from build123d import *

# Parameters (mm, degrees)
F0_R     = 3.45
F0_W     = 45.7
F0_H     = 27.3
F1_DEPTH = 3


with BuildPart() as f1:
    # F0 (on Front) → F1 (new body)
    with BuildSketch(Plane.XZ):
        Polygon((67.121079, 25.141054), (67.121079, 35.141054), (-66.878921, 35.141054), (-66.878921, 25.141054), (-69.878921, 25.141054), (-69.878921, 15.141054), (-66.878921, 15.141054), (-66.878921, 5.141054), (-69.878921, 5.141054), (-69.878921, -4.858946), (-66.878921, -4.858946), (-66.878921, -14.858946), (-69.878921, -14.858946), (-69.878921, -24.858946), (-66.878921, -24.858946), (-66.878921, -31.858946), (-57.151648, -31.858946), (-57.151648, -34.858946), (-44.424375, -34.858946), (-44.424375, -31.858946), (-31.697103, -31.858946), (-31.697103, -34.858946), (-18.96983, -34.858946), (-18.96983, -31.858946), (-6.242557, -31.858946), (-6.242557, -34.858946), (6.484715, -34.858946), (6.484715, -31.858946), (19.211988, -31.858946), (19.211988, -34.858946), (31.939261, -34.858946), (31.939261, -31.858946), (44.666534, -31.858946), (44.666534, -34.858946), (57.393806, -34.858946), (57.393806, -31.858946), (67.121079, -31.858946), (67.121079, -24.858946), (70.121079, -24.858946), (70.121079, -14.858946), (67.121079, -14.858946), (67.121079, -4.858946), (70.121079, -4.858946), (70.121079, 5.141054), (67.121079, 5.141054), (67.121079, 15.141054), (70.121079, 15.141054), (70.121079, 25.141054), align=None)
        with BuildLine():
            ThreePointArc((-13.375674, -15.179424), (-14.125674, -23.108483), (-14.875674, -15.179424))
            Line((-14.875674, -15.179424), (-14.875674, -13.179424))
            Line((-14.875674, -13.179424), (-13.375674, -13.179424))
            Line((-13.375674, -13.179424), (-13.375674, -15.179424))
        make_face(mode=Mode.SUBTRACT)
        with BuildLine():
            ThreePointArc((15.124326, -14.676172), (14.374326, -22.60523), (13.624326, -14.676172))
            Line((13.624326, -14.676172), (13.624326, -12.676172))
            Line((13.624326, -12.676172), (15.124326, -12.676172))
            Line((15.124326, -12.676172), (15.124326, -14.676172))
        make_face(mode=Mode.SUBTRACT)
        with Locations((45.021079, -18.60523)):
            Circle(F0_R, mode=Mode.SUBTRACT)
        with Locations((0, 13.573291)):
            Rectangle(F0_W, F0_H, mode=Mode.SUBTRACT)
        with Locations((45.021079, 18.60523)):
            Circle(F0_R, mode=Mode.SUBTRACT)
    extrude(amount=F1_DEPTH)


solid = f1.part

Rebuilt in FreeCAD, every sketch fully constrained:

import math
import FreeCAD as App
import Part
import Sketcher
Q = App.Units.Quantity

doc = App.newDocument("Part")
body = doc.addObject("PartDesign::Body", "Body")

sketch1 = body.newObject("Sketcher::SketchObject", "Sketch")
sketch1.AttachmentSupport = (doc.getObject("XZ_Plane"), [""])
sketch1.MapMode = "FlatFace"
sketch1.addGeometry([
    Part.LineSegment(App.Vector(67.1, 25.1, 0), App.Vector(67.1, 35.1, 0)),
    Part.LineSegment(App.Vector(67.1, 35.1, 0), App.Vector(-66.9, 35.1, 0)),
    Part.LineSegment(App.Vector(-66.9, 35.1, 0), App.Vector(-66.9, 25.1, 0)),
    Part.LineSegment(App.Vector(-66.9, 25.1, 0), App.Vector(-69.9, 25.1, 0)),
    Part.LineSegment(App.Vector(-69.9, 25.1, 0), App.Vector(-69.9, 15.1, 0)),
    Part.LineSegment(App.Vector(-69.9, 15.1, 0), App.Vector(-66.9, 15.1, 0)),
    Part.LineSegment(App.Vector(-66.9, 15.1, 0), App.Vector(-66.9, 5.1, 0)),
    Part.LineSegment(App.Vector(-66.9, 5.1, 0), App.Vector(-69.9, 5.1, 0)),
    Part.LineSegment(App.Vector(-69.9, 5.1, 0), App.Vector(-69.9, -4.9, 0)),
    Part.LineSegment(App.Vector(-69.9, -4.9, 0), App.Vector(-66.9, -4.9, 0)),
    Part.LineSegment(App.Vector(-66.9, -4.9, 0), App.Vector(-66.9, -14.9, 0)),
    Part.LineSegment(App.Vector(-66.9, -14.9, 0), App.Vector(-69.9, -14.9, 0)),
    Part.LineSegment(App.Vector(-69.9, -14.9, 0), App.Vector(-69.9, -24.9, 0)),
    Part.LineSegment(App.Vector(-69.9, -24.9, 0), App.Vector(-66.9, -24.9, 0)),
    Part.LineSegment(App.Vector(-66.9, -24.9, 0), App.Vector(-66.9, -31.9, 0)),
    Part.LineSegment(App.Vector(-66.9, -31.9, 0), App.Vector(-57.2, -31.9, 0)),
    Part.LineSegment(App.Vector(-57.2, -31.9, 0), App.Vector(-57.2, -34.9, 0)),
    Part.LineSegment(App.Vector(-57.2, -34.9, 0), App.Vector(-44.4, -34.9, 0)),
    Part.LineSegment(App.Vector(-44.4, -34.9, 0), App.Vector(-44.4, -31.9, 0)),
    Part.LineSegment(App.Vector(-44.4, -31.9, 0), App.Vector(-31.7, -31.9, 0)),
    Part.LineSegment(App.Vector(-31.7, -31.9, 0), App.Vector(-31.7, -34.9, 0)),
    Part.LineSegment(App.Vector(-31.7, -34.9, 0), App.Vector(-19, -34.9, 0)),
    Part.LineSegment(App.Vector(-19, -34.9, 0), App.Vector(-19, -31.9, 0)),
    Part.LineSegment(App.Vector(-19, -31.9, 0), App.Vector(-6.2, -31.9, 0)),
    Part.LineSegment(App.Vector(-6.2, -31.9, 0), App.Vector(-6.2, -34.9, 0)),
    Part.LineSegment(App.Vector(-6.2, -34.9, 0), App.Vector(6.5, -34.9, 0)),
    Part.LineSegment(App.Vector(6.5, -34.9, 0), App.Vector(6.5, -31.9, 0)),
    Part.LineSegment(App.Vector(6.5, -31.9, 0), App.Vector(19.2, -31.9, 0)),
    Part.LineSegment(App.Vector(19.2, -31.9, 0), App.Vector(19.2, -34.9, 0)),
    Part.LineSegment(App.Vector(19.2, -34.9, 0), App.Vector(31.9, -34.9, 0)),
    Part.LineSegment(App.Vector(31.9, -34.9, 0), App.Vector(31.9, -31.9, 0)),
    Part.LineSegment(App.Vector(31.9, -31.9, 0), App.Vector(44.7, -31.9, 0)),
    Part.LineSegment(App.Vector(44.7, -31.9, 0), App.Vector(44.7, -34.9, 0)),
    Part.LineSegment(App.Vector(44.7, -34.9, 0), App.Vector(57.4, -34.9, 0)),
    Part.LineSegment(App.Vector(57.4, -34.9, 0), App.Vector(57.4, -31.9, 0)),
    Part.LineSegment(App.Vector(57.4, -31.9, 0), App.Vector(67.1, -31.9, 0)),
    Part.LineSegment(App.Vector(67.1, -31.9, 0), App.Vector(67.1, -24.9, 0)),
    Part.LineSegment(App.Vector(67.1, -24.9, 0), App.Vector(70.1, -24.9, 0)),
    Part.LineSegment(App.Vector(70.1, -24.9, 0), App.Vector(70.1, -14.9, 0)),
    Part.LineSegment(App.Vector(70.1, -14.9, 0), App.Vector(67.1, -14.9, 0)),
    Part.LineSegment(App.Vector(67.1, -14.9, 0), App.Vector(67.1, -4.9, 0)),
    Part.LineSegment(App.Vector(67.1, -4.9, 0), App.Vector(70.1, -4.9, 0)),
    Part.LineSegment(App.Vector(70.1, -4.9, 0), App.Vector(70.1, 5.1, 0)),
    Part.LineSegment(App.Vector(70.1, 5.1, 0), App.Vector(67.1, 5.1, 0)),
    Part.LineSegment(App.Vector(67.1, 5.1, 0), App.Vector(67.1, 15.1, 0)),
    Part.LineSegment(App.Vector(67.1, 15.1, 0), App.Vector(70.1, 15.1, 0)),
    Part.LineSegment(App.Vector(70.1, 15.1, 0), App.Vector(70.1, 25.1, 0)),
    Part.LineSegment(App.Vector(70.1, 25.1, 0), App.Vector(67.1, 25.1, 0)),
    Part.LineSegment(App.Vector(-13.4, -13.2, 0), App.Vector(-13.4, -15.2, 0)),
    Part.ArcOfCircle(Part.Circle(App.Vector(-14.1, -19.1, 0), App.Vector(0, 0, 1), 4), math.radians(101), math.radians(439)),
    Part.LineSegment(App.Vector(-14.9, -15.2, 0), App.Vector(-14.9, -13.2, 0)),
    Part.LineSegment(App.Vector(-14.9, -13.2, 0), App.Vector(-13.4, -13.2, 0)),
    Part.LineSegment(App.Vector(15.1, -12.7, 0), App.Vector(15.1, -14.7, 0)),
    Part.ArcOfCircle(Part.Circle(App.Vector(14.4, -18.6, 0), App.Vector(0, 0, 1), 4), math.radians(101), math.radians(439)),
    Part.LineSegment(App.Vector(13.6, -14.7, 0), App.Vector(13.6, -12.7, 0)),
    Part.LineSegment(App.Vector(13.6, -12.7, 0), App.Vector(15.1, -12.7, 0)),
    Part.Circle(App.Vector(45, -18.6, 0), App.Vector(0, 0, 1), 3.5),
    Part.LineSegment(App.Vector(22.9, -0.1, 0), App.Vector(-22.9, -0.1, 0)),
    Part.LineSegment(App.Vector(-22.9, -0.1, 0), App.Vector(-22.9, 27.2, 0)),
    Part.LineSegment(App.Vector(-22.9, 27.2, 0), App.Vector(22.9, 27.2, 0)),
    Part.LineSegment(App.Vector(22.9, 27.2, 0), App.Vector(22.9, -0.1, 0)),
    Part.Circle(App.Vector(45, 18.6, 0), App.Vector(0, 0, 1), 3.5),
], False)
sketch1.addConstraint([
    Sketcher.Constraint("Coincident", 0, 2, 1, 1),
    Sketcher.Constraint("Coincident", 1, 2, 2, 1),
    Sketcher.Constraint("Coincident", 2, 2, 3, 1),
    Sketcher.Constraint("Coincident", 3, 2, 4, 1),
    Sketcher.Constraint("Coincident", 4, 2, 5, 1),
    Sketcher.Constraint("Coincident", 5, 2, 6, 1),
    Sketcher.Constraint("Coincident", 6, 2, 7, 1),
    Sketcher.Constraint("Coincident", 7, 2, 8, 1),
    Sketcher.Constraint("Coincident", 8, 2, 9, 1),
    Sketcher.Constraint("Coincident", 9, 2, 10, 1),
    Sketcher.Constraint("Coincident", 10, 2, 11, 1),
    Sketcher.Constraint("Coincident", 11, 2, 12, 1),
    Sketcher.Constraint("Coincident", 12, 2, 13, 1),
    Sketcher.Constraint("Coincident", 13, 2, 14, 1),
    Sketcher.Constraint("Coincident", 14, 2, 15, 1),
    Sketcher.Constraint("Coincident", 15, 2, 16, 1),
    Sketcher.Constraint("Coincident", 16, 2, 17, 1),
    Sketcher.Constraint("Coincident", 17, 2, 18, 1),
    Sketcher.Constraint("Coincident", 18, 2, 19, 1),
    Sketcher.Constraint("Coincident", 19, 2, 20, 1),
    Sketcher.Constraint("Coincident", 20, 2, 21, 1),
    Sketcher.Constraint("Coincident", 21, 2, 22, 1),
    Sketcher.Constraint("Coincident", 22, 2, 23, 1),
    Sketcher.Constraint("Coincident", 23, 2, 24, 1),
    Sketcher.Constraint("Coincident", 24, 2, 25, 1),
    Sketcher.Constraint("Coincident", 25, 2, 26, 1),
    Sketcher.Constraint("Coincident", 26, 2, 27, 1),
    Sketcher.Constraint("Coincident", 27, 2, 28, 1),
    Sketcher.Constraint("Coincident", 28, 2, 29, 1),
    Sketcher.Constraint("Coincident", 29, 2, 30, 1),
    Sketcher.Constraint("Coincident", 30, 2, 31, 1),
    Sketcher.Constraint("Coincident", 31, 2, 32, 1),
    Sketcher.Constraint("Coincident", 32, 2, 33, 1),
    Sketcher.Constraint("Coincident", 33, 2, 34, 1),
    Sketcher.Constraint("Coincident", 34, 2, 35, 1),
    Sketcher.Constraint("Coincident", 35, 2, 36, 1),
    Sketcher.Constraint("Coincident", 36, 2, 37, 1),
    Sketcher.Constraint("Coincident", 37, 2, 38, 1),
    Sketcher.Constraint("Coincident", 38, 2, 39, 1),
    Sketcher.Constraint("Coincident", 39, 2, 40, 1),
    Sketcher.Constraint("Coincident", 40, 2, 41, 1),
    Sketcher.Constraint("Coincident", 41, 2, 42, 1),
    Sketcher.Constraint("Coincident", 42, 2, 43, 1),
    Sketcher.Constraint("Coincident", 43, 2, 44, 1),
    Sketcher.Constraint("Coincident", 44, 2, 45, 1),
    Sketcher.Constraint("Coincident", 45, 2, 46, 1),
    Sketcher.Constraint("Coincident", 46, 2, 47, 1),
    Sketcher.Constraint("Coincident", 47, 2, 0, 1),
    Sketcher.Constraint("Coincident", 48, 2, 49, 2),
    Sketcher.Constraint("Coincident", 49, 1, 50, 1),
    Sketcher.Constraint("Coincident", 50, 2, 51, 1),
    Sketcher.Constraint("Coincident", 51, 2, 48, 1),
    Sketcher.Constraint("Coincident", 52, 2, 53, 2),
    Sketcher.Constraint("Coincident", 53, 1, 54, 1),
    Sketcher.Constraint("Coincident", 54, 2, 55, 1),
    Sketcher.Constraint("Coincident", 55, 2, 52, 1),
    Sketcher.Constraint("Coincident", 57, 2, 58, 1),
    Sketcher.Constraint("Coincident", 58, 2, 59, 1),
    Sketcher.Constraint("Coincident", 59, 2, 60, 1),
    Sketcher.Constraint("Coincident", 60, 2, 57, 1),
    Sketcher.Constraint("Vertical", 0),
    Sketcher.Constraint("Horizontal", 1),
    Sketcher.Constraint("Vertical", 2),
    Sketcher.Constraint("Horizontal", 3),
    Sketcher.Constraint("Vertical", 4),
    Sketcher.Constraint("Horizontal", 5),
    Sketcher.Constraint("Vertical", 6),
    Sketcher.Constraint("Horizontal", 7),
    Sketcher.Constraint("Vertical", 8),
    Sketcher.Constraint("Horizontal", 9),
    Sketcher.Constraint("Vertical", 10),
    Sketcher.Constraint("Horizontal", 11),
    Sketcher.Constraint("Vertical", 12),
    Sketcher.Constraint("Horizontal", 13),
    Sketcher.Constraint("Vertical", 14),
    Sketcher.Constraint("Horizontal", 15),
    Sketcher.Constraint("Vertical", 16),
    Sketcher.Constraint("Horizontal", 17),
    Sketcher.Constraint("Vertical", 18),
    Sketcher.Constraint("Horizontal", 19),
    Sketcher.Constraint("Vertical", 20),
    Sketcher.Constraint("Horizontal", 21),
    Sketcher.Constraint("Vertical", 22),
    Sketcher.Constraint("Horizontal", 23),
    Sketcher.Constraint("Vertical", 24),
    Sketcher.Constraint("Horizontal", 25),
    Sketcher.Constraint("Vertical", 26),
    Sketcher.Constraint("Horizontal", 27),
    Sketcher.Constraint("Vertical", 28),
    Sketcher.Constraint("Horizontal", 29),
    Sketcher.Constraint("Vertical", 30),
    Sketcher.Constraint("Horizontal", 31),
    Sketcher.Constraint("Vertical", 32),
    Sketcher.Constraint("Horizontal", 33),
    Sketcher.Constraint("Vertical", 34),
    Sketcher.Constraint("Horizontal", 35),
    Sketcher.Constraint("Vertical", 36),
    Sketcher.Constraint("Horizontal", 37),
    Sketcher.Constraint("Vertical", 38),
    Sketcher.Constraint("Horizontal", 39),
    Sketcher.Constraint("Vertical", 40),
    Sketcher.Constraint("Horizontal", 41),
    Sketcher.Constraint("Vertical", 42),
    Sketcher.Constraint("Horizontal", 43),
    Sketcher.Constraint("Vertical", 44),
    Sketcher.Constraint("Horizontal", 45),
    Sketcher.Constraint("Vertical", 46),
    Sketcher.Constraint("Horizontal", 47),
    Sketcher.Constraint("Vertical", 48),
    Sketcher.Constraint("Vertical", 50),
    Sketcher.Constraint("Horizontal", 51),
    Sketcher.Constraint("Vertical", 52),
    Sketcher.Constraint("Vertical", 54),
    Sketcher.Constraint("Horizontal", 55),
    Sketcher.Constraint("Horizontal", 57),
    Sketcher.Constraint("Vertical", 58),
    Sketcher.Constraint("Horizontal", 59),
    Sketcher.Constraint("Vertical", 60),
    Sketcher.Constraint("Equal", 49, 53),
    Sketcher.Constraint("Equal", 56, 61),
    Sketcher.Constraint("Symmetric", 56, 3, 61, 3, -1),
    Sketcher.Constraint("Horizontal", 53, 3, 56, 3),
    Sketcher.Constraint("Horizontal", 15, 2, 18, 2),
    Sketcher.Constraint("Horizontal", 17, 2, 20, 2),
    Sketcher.Constraint("Horizontal", 19, 2, 22, 2),
    Sketcher.Constraint("Horizontal", 21, 2, 24, 2),
    Sketcher.Constraint("Horizontal", 23, 2, 26, 2),
    Sketcher.Constraint("Horizontal", 25, 2, 28, 2),
    Sketcher.Constraint("Horizontal", 27, 2, 30, 2),
    Sketcher.Constraint("Horizontal", 29, 2, 32, 2),
    Sketcher.Constraint("Horizontal", 31, 2, 34, 2),
    Sketcher.Constraint("Horizontal", 13, 2, 36, 2),
    Sketcher.Constraint("Horizontal", 11, 2, 38, 2),
    Sketcher.Constraint("Horizontal", 9, 2, 40, 2),
    Sketcher.Constraint("Horizontal", 7, 2, 42, 2),
    Sketcher.Constraint("Horizontal", 5, 2, 44, 2),
    Sketcher.Constraint("Horizontal", 3, 2, 46, 2),
    Sketcher.Constraint("Horizontal", 48, 2, 49, 1),
    Sketcher.Constraint("Horizontal", 52, 2, 53, 1),
    Sketcher.Constraint("Vertical", 2, 2, 5, 2),
    Sketcher.Constraint("Vertical", 4, 2, 7, 2),
    Sketcher.Constraint("Vertical", 6, 2, 9, 2),
    Sketcher.Constraint("Vertical", 8, 2, 11, 2),
    Sketcher.Constraint("Vertical", 10, 2, 13, 2),
    Sketcher.Constraint("Vertical", 0, 2, 35, 2),
    Sketcher.Constraint("Vertical", 36, 2, 39, 2),
    Sketcher.Constraint("Vertical", 38, 2, 41, 2),
    Sketcher.Constraint("Vertical", 40, 2, 43, 2),
    Sketcher.Constraint("Vertical", 42, 2, 45, 2),
    Sketcher.Constraint("Equal", 17, 19),
    Sketcher.Constraint("Equal", 19, 21),
    Sketcher.Constraint("Equal", 21, 23),
    Sketcher.Constraint("Equal", 23, 25),
    Sketcher.Constraint("Equal", 25, 27),
    Sketcher.Constraint("Equal", 27, 29),
    Sketcher.Constraint("Equal", 29, 31),
    Sketcher.Constraint("Equal", 31, 33),
    Sketcher.Constraint("Equal", 15, 35),
    Sketcher.Constraint("Equal", 13, 37),
    Sketcher.Constraint("Equal", 51, 55),
    Sketcher.Constraint("Equal", 2, 4),
    Sketcher.Constraint("Equal", 4, 6),
    Sketcher.Constraint("Equal", 6, 8),
    Sketcher.Constraint("Equal", 8, 10),
    Sketcher.Constraint("Equal", 10, 12),
    Sketcher.Constraint("Equal", 47, 16),
    Sketcher.Constraint("Equal", 50, 52),
    Sketcher.Constraint("Radius", 49, Q("4 mm")),
    Sketcher.Constraint("Diameter", 56, Q("6.9 mm")),
    Sketcher.Constraint("DistanceX", 1, 2, 1, 1, Q("134 mm")),
    Sketcher.Constraint("DistanceX", 3, 2, 3, 1, Q("3 mm")),
    Sketcher.Constraint("DistanceY", 0, 1, 0, 2, Q("10 mm")),
    Sketcher.Constraint("DistanceY", 14, 2, 14, 1, Q("7 mm")),
    Sketcher.Constraint("DistanceY", 48, 2, 48, 1, Q("2 mm")),
    Sketcher.Constraint("DistanceX", 51, 1, 51, 2, Q("1.5 mm")),
    Sketcher.Constraint("DistanceX", 57, 2, 57, 1, Q("45.7 mm")),
    Sketcher.Constraint("DistanceY", 58, 1, 58, 2, Q("27.3 mm")),
    Sketcher.Constraint("DistanceX", 57, 2, -1, 1, Q("22.85 mm")),
    Sketcher.Constraint("DistanceX", 19, 1, 19, 2, Q("12.727272 mm")),
    Sketcher.Constraint("DistanceY", 53, 3, -1, 1, Q("18.60523 mm")),
    Sketcher.Constraint("DistanceX", -1, 1, 56, 3, Q("45.021079 mm")),
    Sketcher.Constraint("DistanceX", -1, 1, 0, 2, Q("67.121079 mm")),
    Sketcher.Constraint("DistanceY", 57, 2, -1, 1, Q("0.076709 mm")),
    Sketcher.Constraint("DistanceX", 49, 3, -1, 1, Q("14.125674 mm")),
    Sketcher.Constraint("DistanceY", 49, 3, -1, 1, Q("19.108483 mm")),
    Sketcher.Constraint("DistanceX", -1, 1, 53, 3, Q("14.374326 mm")),
    Sketcher.Constraint("DistanceY", -1, 1, 0, 2, Q("35.141054 mm")),
])
pad1 = body.newObject("PartDesign::Pad", "Pad")
pad1.Profile = sketch1
pad1.Length = 3

doc.recompute()
